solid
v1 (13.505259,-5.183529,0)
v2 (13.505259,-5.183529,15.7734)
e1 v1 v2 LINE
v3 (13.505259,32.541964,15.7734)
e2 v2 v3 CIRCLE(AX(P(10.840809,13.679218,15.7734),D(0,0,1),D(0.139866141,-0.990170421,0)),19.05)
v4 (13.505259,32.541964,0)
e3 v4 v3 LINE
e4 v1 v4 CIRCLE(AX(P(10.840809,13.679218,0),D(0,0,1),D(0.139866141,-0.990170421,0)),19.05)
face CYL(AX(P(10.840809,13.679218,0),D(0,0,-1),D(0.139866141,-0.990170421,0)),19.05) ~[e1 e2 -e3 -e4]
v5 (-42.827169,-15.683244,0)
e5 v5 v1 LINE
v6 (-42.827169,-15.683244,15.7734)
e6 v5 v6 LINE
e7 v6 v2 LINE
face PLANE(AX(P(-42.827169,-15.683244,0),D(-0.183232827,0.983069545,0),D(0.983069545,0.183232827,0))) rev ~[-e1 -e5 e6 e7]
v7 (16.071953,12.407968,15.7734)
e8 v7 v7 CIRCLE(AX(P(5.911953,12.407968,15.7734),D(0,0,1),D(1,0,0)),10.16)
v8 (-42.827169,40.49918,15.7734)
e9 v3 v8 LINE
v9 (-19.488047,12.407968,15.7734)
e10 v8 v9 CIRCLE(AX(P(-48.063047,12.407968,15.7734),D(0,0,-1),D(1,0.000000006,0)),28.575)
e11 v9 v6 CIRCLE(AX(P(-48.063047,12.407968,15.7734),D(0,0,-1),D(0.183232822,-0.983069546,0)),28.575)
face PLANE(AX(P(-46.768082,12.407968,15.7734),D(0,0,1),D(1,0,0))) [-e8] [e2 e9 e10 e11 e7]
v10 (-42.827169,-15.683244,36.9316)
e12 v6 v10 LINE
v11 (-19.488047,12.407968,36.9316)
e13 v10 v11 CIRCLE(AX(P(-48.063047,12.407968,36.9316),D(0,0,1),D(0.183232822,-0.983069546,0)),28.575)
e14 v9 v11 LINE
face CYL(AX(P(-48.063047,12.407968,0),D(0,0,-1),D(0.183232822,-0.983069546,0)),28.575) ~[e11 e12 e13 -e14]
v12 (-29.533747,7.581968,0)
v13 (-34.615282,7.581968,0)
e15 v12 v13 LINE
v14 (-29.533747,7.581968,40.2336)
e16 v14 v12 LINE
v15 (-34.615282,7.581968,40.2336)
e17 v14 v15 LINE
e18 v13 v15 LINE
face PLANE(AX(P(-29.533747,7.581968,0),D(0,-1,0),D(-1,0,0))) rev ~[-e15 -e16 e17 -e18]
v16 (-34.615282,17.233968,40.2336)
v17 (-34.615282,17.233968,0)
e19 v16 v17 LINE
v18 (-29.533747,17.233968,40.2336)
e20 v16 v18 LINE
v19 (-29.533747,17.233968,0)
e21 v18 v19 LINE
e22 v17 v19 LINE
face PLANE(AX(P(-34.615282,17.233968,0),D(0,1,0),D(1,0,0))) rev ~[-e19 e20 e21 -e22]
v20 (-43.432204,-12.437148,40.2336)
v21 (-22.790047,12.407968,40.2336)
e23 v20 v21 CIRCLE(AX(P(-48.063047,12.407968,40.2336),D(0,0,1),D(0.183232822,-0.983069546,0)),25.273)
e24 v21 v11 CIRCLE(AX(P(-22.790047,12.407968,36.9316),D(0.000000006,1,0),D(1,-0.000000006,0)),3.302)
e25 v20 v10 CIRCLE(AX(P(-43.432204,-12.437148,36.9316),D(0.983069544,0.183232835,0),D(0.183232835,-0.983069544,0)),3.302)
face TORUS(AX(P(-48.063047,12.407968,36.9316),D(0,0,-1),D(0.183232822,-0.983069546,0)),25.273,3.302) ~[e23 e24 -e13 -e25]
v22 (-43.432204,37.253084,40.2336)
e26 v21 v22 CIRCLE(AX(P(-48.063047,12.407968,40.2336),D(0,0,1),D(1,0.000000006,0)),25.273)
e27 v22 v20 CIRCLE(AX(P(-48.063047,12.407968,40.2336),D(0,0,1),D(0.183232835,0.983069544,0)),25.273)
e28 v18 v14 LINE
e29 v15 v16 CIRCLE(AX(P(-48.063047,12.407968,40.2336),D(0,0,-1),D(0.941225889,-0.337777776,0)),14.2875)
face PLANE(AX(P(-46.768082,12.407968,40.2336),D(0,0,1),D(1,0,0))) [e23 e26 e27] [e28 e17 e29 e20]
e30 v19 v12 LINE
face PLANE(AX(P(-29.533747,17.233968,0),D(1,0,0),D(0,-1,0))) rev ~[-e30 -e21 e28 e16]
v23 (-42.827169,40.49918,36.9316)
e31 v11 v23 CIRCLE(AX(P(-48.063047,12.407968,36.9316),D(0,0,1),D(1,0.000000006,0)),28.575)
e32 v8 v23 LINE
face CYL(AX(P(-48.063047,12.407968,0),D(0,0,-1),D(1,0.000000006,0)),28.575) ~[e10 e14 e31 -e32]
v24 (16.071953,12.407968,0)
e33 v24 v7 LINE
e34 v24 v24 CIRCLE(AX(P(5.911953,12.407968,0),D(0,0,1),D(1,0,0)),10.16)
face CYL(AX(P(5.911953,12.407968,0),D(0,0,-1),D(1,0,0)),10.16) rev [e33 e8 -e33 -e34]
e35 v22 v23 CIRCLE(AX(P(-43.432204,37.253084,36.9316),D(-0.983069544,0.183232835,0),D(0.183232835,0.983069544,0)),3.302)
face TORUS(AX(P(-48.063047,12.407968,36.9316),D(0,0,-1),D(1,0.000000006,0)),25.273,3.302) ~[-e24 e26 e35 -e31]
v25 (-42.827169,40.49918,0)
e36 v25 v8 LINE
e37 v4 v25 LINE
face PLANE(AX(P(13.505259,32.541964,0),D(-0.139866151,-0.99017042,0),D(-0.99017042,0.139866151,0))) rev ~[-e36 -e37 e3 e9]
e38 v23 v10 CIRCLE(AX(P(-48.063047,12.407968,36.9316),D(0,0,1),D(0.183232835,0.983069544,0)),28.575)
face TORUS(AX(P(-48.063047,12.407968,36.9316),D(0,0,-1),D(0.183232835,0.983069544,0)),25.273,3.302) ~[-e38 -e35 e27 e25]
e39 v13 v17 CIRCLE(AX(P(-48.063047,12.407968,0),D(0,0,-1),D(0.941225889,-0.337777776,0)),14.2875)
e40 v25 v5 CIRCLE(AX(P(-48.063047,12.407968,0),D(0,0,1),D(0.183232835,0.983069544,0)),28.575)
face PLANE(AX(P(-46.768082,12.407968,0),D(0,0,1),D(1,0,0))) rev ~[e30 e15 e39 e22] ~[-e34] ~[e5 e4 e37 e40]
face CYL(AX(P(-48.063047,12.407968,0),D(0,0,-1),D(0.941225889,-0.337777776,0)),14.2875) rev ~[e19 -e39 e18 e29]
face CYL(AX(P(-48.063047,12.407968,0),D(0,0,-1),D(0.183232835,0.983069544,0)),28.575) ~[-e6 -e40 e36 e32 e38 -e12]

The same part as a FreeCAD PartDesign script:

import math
import FreeCAD as App
import Part
import Sketcher

V = App.Vector
Q = App.Units.Quantity


def edges_at(feature, points):
    """Names of the edges that pass closest to the given points."""
    edges = feature.Shape.Edges
    near = lambda p: min(range(len(edges)), key=lambda i: edges[i].distToShape(Part.Vertex(*p))[0])
    return sorted({f"Edge{near(p) + 1}" for p in points})

doc = App.newDocument("Part")
params = doc.addObject("Spreadsheet::Sheet", "Params")
for row, (alias, value) in enumerate([
    ("sketch1_radius", "1.125 in"),
    ("sketch1_radius2", "0.5625 in"),
    ("sketch1_height", "0.38 in"),
    ("pad1_length", "1.584 in"),
    ("sketch2_diameter", "0.8 in"),
    ("sketch2_radius", "0.75 in"),
    ("sketch2_radius2", "1.125 in"),
    ("sketch2_radius3", "0.5625 in"),
    ("sketch2_height", "0.38 in"),
    ("pad2_length", "0.621 in"),
    ("fillet_radius", "0.13 in"),
], start=1):
    params.set(f"A{row}", alias)
    params.set(f"B{row}", "=" + value)
    params.setAlias(f"B{row}", alias)

body = doc.addObject("PartDesign::Body", "Body")

sketch1 = body.newObject("Sketcher::SketchObject", "Sketch")
sketch1.AttachmentSupport = (doc.getObject("XY_Plane"), [""])
sketch1.MapMode = "FlatFace"
sketch1.addGeometry(Part.ArcOfCircle(Part.Circle(V(-48, 12, 0), V(0, 0, 1), 29), math.radians(-79), math.radians(0)), False)
sketch1.addGeometry(Part.ArcOfCircle(Part.Circle(V(-48, 12, 0), V(0, 0, 1), 29), math.radians(0), math.radians(79)), False)
sketch1.addGeometry(Part.ArcOfCircle(Part.Circle(V(-48, 12, 0), V(0, 0, 1), 29), math.radians(79), math.radians(281)), False)
sketch1.addGeometry(Part.LineSegment(V(-30, 8, 0), V(-35, 8, 0)), False)
sketch1.addGeometry(Part.ArcOfCircle(Part.Circle(V(-48, 12, 0), V(0, 0, 1), 14), math.radians(20), math.radians(340)), False)
sketch1.addGeometry(Part.LineSegment(V(-35, 17, 0), V(-30, 17, 0)), False)
sketch1.addGeometry(Part.LineSegment(V(-30, 17, 0), V(-30, 8, 0)), False)
sketch1.addConstraint(Sketcher.Constraint("Tangent", 0, 2, 1, 1))
sketch1.addConstraint(Sketcher.Constraint("Tangent", 1, 2, 2, 1))
sketch1.addConstraint(Sketcher.Constraint("Tangent", 2, 2, 0, 1))
sketch1.addConstraint(Sketcher.Constraint("Coincident", 3, 2, 4, 2))
sketch1.addConstraint(Sketcher.Constraint("Coincident", 4, 1, 5, 1))
sketch1.addConstraint(Sketcher.Constraint("Coincident", 5, 2, 6, 1))
sketch1.addConstraint(Sketcher.Constraint("Coincident", 6, 2, 3, 1))
sketch1.addConstraint(Sketcher.Constraint("Horizontal", 3))
sketch1.addConstraint(Sketcher.Constraint("Horizontal", 5))
sketch1.addConstraint(Sketcher.Constraint("Vertical", 6))
sketch1.addConstraint(Sketcher.Constraint("Coincident", 4, 3, 0, 3))
sketch1.addConstraint(Sketcher.Constraint("Horizontal", 4, 3, 0, 2))
sketch1.addConstraint(Sketcher.Constraint("Vertical", 1, 2, 2, 2))
sketch1.addConstraint(Sketcher.Constraint("Vertical", 3, 2, 4, 1))
sketch1.addConstraint(Sketcher.Constraint("Radius", 0, Q("1.125 in")))
sketch1.addConstraint(Sketcher.Constraint("Radius", 4, Q("0.5625 in")))
sketch1.addConstraint(Sketcher.Constraint("DistanceY", 6, 2, 6, 1, Q("0.38 in")))
sketch1.addConstraint(Sketcher.Constraint("DistanceX", 5, 2, 0, 2, Q("0.3955 in")))
sketch1.addConstraint(Sketcher.Constraint("DistanceY", -1, 1, 0, 3, Q("12.407968 mm")))
sketch1.addConstraint(Sketcher.Constraint("DistanceX", 1, 2, -1, 1, Q("42.827169 mm")))
sketch1.addConstraint(Sketcher.Constraint("DistanceY", -1, 1, 1, 2, Q("40.49918 mm")))
sketch1.setExpression("Constraints[14]", "Params.sketch1_radius")
sketch1.setExpression("Constraints[15]", "Params.sketch1_radius2")
sketch1.setExpression("Constraints[16]", "Params.sketch1_height")
pad1 = body.newObject("PartDesign::Pad", "Pad")
pad1.Profile = sketch1
pad1.setExpression("Length", "Params.pad1_length")

sketch2 = body.newObject("Sketcher::SketchObject", "Sketch001")
sketch2.AttachmentSupport = (doc.getObject("XY_Plane"), [""])
sketch2.MapMode = "FlatFace"
sketch2.addGeometry(Part.ArcOfCircle(Part.Circle(V(-48, 12, 0), V(0, 0, 1), 29), math.radians(79), math.radians(281)), False)
sketch2.addGeometry(Part.LineSegment(V(-43, -16, 0), V(14, -5, 0)), False)
sketch2.addGeometry(Part.ArcOfCircle(Part.Circle(V(11, 14, 0), V(0, 0, 1), 19), math.radians(-82), math.radians(82)), False)
sketch2.addGeometry(Part.LineSegment(V(14, 33, 0), V(-43, 40, 0)), False)
sketch2.addGeometry(Part.Circle(V(6, 12, 0), V(0, 0, 1), 10), False)
sketch2.addGeometry(Part.LineSegment(V(-30, 8, 0), V(-35, 8, 0)), False)
sketch2.addGeometry(Part.ArcOfCircle(Part.Circle(V(-48, 12, 0), V(0, 0, 1), 14), math.radians(20), math.radians(340)), False)
sketch2.addGeometry(Part.LineSegment(V(-35, 17, 0), V(-30, 17, 0)), False)
sketch2.addGeometry(Part.LineSegment(V(-30, 17, 0), V(-30, 8, 0)), False)
sketch2.addConstraint(Sketcher.Constraint("Tangent", 0, 2, 1, 1))
sketch2.addConstraint(Sketcher.Constraint("Coincident", 1, 2, 2, 1))
sketch2.addConstraint(Sketcher.Constraint("Tangent", 2, 2, 3, 1))
sketch2.addConstraint(Sketcher.Constraint("Coincident", 3, 2, 0, 1))
sketch2.addConstraint(Sketcher.Constraint("Coincident", 5, 2, 6, 2))
sketch2.addConstraint(Sketcher.Constraint("Coincident", 6, 1, 7, 1))
sketch2.addConstraint(Sketcher.Constraint("Coincident", 7, 2, 8, 1))
sketch2.addConstraint(Sketcher.Constraint("Coincident", 8, 2, 5, 1))
sketch2.addConstraint(Sketcher.Constraint("Horizontal", 5))
sketch2.addConstraint(Sketcher.Constraint("Horizontal", 7))
sketch2.addConstraint(Sketcher.Constraint("Vertical", 8))
sketch2.addConstraint(Sketcher.Constraint("Coincident", 6, 3, 0, 3))
sketch2.addConstraint(Sketcher.Constraint("Horizontal", 0, 3, 4, 3))
sketch2.addConstraint(Sketcher.Constraint("Vertical", 1, 2, 2, 2))
sketch2.addConstraint(Sketcher.Constraint("Vertical", 0, 2, 3, 2))
sketch2.addConstraint(Sketcher.Constraint("Vertical", 5, 2, 6, 1))
sketch2.addConstraint(Sketcher.Constraint("Diameter", 4, Q("0.8 in")))
sketch2.addConstraint(Sketcher.Constraint("Radius", 2, Q("0.75 in")))
sketch2.addConstraint(Sketcher.Constraint("Radius", 0, Q("1.125 in")))
sketch2.addConstraint(Sketcher.Constraint("Radius", 6, Q("0.5625 in")))
sketch2.addConstraint(Sketcher.Constraint("DistanceY", 8, 2, 8, 1, Q("0.38 in")))
sketch2.addConstraint(Sketcher.Constraint("DistanceX", 0, 3, 4, 3, Q("2.125 in")))
sketch2.addConstraint(Sketcher.Constraint("DistanceX", 6, 3, 7, 2, Q("0.7295 in")))
sketch2.addConstraint(Sketcher.Constraint("Distance", 3, Q("56.891649 mm")))
sketch2.addConstraint(Sketcher.Constraint("DistanceX", -1, 1, 2, 3, Q("10.840809 mm")))
sketch2.addConstraint(Sketcher.Constraint("DistanceX", 0, 2, -1, 1, Q("42.827169 mm")))
sketch2.addConstraint(Sketcher.Constraint("DistanceY", 1, 2, -1, 1, Q("5.183529 mm")))
sketch2.setExpression("Constraints[16]", "Params.sketch2_diameter")
sketch2.setExpression("Constraints[17]", "Params.sketch2_radius")
sketch2.setExpression("Constraints[18]", "Params.sketch2_radius2")
sketch2.setExpression("Constraints[19]", "Params.sketch2_radius3")
sketch2.setExpression("Constraints[20]", "Params.sketch2_height")
pad2 = body.newObject("PartDesign::Pad", "Pad001")
pad2.Profile = sketch2
pad2.setExpression("Length", "Params.pad2_length")
doc.recompute()

fillet = body.newObject("PartDesign::Fillet", "Fillet")
fillet.Base = (pad2, edges_at(pad2, [(-76.638, 12.408, 40.234)]))
fillet.setExpression("Radius", "Params.fillet_radius")

doc.recompute()
